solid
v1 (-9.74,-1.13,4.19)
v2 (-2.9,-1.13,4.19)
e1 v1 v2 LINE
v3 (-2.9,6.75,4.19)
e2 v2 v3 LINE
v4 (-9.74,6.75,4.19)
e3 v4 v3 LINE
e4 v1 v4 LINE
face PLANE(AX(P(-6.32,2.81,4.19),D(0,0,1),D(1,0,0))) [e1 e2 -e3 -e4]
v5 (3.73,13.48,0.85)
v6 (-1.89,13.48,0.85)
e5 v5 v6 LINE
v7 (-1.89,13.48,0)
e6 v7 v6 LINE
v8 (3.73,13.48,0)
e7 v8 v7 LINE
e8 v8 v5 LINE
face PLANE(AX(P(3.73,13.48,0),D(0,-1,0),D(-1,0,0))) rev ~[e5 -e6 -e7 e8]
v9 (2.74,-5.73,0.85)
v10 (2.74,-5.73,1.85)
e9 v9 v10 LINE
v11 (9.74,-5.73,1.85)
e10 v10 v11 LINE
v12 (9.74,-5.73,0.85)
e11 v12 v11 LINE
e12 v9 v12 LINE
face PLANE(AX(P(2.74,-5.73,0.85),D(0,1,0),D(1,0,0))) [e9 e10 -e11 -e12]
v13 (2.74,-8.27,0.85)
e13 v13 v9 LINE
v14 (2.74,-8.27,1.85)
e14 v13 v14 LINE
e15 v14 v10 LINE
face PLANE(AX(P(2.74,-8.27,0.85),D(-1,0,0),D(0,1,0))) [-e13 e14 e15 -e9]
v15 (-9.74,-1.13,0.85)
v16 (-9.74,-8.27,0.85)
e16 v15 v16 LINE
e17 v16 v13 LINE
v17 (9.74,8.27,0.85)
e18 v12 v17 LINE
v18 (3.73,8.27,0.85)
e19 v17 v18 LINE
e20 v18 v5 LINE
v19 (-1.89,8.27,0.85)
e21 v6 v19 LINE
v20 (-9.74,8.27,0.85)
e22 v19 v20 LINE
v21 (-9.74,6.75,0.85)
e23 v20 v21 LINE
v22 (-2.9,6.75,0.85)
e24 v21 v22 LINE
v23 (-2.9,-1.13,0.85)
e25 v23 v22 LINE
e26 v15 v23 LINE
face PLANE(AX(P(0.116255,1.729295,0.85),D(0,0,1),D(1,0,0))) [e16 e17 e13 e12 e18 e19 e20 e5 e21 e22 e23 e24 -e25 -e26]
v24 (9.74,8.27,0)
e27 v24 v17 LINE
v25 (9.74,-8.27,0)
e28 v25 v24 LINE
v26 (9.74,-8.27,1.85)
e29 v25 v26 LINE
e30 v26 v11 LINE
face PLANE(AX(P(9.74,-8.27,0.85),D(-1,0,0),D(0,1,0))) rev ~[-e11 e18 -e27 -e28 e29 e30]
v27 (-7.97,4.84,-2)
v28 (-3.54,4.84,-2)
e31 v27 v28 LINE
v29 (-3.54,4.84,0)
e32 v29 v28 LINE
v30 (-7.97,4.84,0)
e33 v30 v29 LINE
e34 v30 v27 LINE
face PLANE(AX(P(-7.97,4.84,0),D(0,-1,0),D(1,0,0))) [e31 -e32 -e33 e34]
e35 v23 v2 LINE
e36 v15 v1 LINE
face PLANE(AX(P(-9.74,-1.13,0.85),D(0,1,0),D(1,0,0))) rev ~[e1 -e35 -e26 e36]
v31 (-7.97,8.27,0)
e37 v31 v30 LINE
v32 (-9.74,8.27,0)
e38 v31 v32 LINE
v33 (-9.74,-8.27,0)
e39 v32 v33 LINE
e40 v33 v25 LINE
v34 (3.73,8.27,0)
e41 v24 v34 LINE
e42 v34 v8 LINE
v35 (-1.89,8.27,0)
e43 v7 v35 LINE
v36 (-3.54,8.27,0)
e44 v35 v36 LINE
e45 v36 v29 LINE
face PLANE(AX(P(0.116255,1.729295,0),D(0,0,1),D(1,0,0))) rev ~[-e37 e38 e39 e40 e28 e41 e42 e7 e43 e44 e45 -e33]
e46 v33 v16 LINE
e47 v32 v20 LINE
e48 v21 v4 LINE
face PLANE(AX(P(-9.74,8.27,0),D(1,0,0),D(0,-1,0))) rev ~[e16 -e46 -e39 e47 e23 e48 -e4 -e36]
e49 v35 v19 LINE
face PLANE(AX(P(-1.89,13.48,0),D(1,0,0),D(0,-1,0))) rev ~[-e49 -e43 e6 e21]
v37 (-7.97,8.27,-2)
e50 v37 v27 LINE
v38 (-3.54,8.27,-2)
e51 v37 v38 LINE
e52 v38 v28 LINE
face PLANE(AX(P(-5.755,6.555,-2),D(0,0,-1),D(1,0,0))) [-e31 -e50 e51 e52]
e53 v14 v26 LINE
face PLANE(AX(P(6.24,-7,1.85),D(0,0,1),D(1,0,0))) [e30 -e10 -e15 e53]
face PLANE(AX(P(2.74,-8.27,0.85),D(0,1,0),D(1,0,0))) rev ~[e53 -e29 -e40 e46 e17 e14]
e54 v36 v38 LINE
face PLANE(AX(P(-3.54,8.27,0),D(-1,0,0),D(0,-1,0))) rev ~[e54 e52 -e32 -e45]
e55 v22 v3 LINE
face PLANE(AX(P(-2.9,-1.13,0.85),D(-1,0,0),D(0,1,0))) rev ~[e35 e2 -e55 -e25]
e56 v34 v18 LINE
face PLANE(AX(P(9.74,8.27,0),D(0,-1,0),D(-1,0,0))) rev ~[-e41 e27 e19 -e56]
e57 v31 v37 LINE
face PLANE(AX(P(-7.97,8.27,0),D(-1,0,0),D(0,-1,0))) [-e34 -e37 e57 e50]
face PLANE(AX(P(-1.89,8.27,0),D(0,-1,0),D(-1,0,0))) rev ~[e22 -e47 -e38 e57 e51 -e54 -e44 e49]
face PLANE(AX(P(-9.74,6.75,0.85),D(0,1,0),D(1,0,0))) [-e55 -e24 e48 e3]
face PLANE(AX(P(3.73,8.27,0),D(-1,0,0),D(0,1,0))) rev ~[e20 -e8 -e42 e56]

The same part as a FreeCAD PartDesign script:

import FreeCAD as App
import Part
import Sketcher


def add_polygon(sketch, points):
    """Adds a closed chain of lines whose ends are joined by coincident constraints."""
    first, n = sketch.GeometryCount, len(points)
    for a, b in zip(points, points[1:] + points[:1]):
        sketch.addGeometry(Part.LineSegment(App.Vector(*a, 0), App.Vector(*b, 0)), False)
    for i in range(n):
        sketch.addConstraint(Sketcher.Constraint("Coincident", first + i, 2, first + (i + 1) % n, 1))

doc = App.newDocument("Part")
body = doc.addObject("PartDesign::Body", "Body")

# Sketch on XY plane
sketch1 = doc.addObject("Sketcher::SketchObject", "Sketch")
body.addObject(sketch1)
sketch1.AttachmentSupport = (doc.XY_Plane, [""])
sketch1.MapMode = "FlatFace"
add_polygon(sketch1, [(-9.74, -8.27), (9.74, -8.27), (9.74, 8.27), (3.73, 8.27), (3.73, 13.48), (-1.89, 13.48), (-1.89, 8.27), (-9.74, 8.27)])  # lines 0-7
sketch1.addConstraint([
    Sketcher.Constraint("Horizontal", 0),
    Sketcher.Constraint("Vertical", 1),
    Sketcher.Constraint("Horizontal", 2),
    Sketcher.Constraint("Vertical", 3),
    Sketcher.Constraint("Horizontal", 4),
    Sketcher.Constraint("Vertical", 5),
    Sketcher.Constraint("Horizontal", 6),
    Sketcher.Constraint("Vertical", 7),
    Sketcher.Constraint("Symmetric", 0, 2, 6, 2, -1, 1),
    Sketcher.Constraint("Horizontal", 2, 2, 5, 2),
    Sketcher.Constraint("DistanceX", 0, 1, 0, 2, 19.48),
    Sketcher.Constraint("DistanceX", 2, 2, 2, 1, 6.01),
    Sketcher.Constraint("DistanceX", 4, 2, 4, 1, 5.62),
    Sketcher.Constraint("DistanceY", 1, 1, 1, 2, 16.54),
    Sketcher.Constraint("DistanceY", 3, 1, 3, 2, 5.21),
])
pad1 = doc.addObject("PartDesign::Pad", "Pad")
body.addObject(pad1)
pad1.Profile = sketch1
pad1.Length = 0.85

# Sketch on XY plane
sketch2 = doc.addObject("Sketcher::SketchObject", "Sketch001")
body.addObject(sketch2)
sketch2.AttachmentSupport = (doc.XY_Plane, [""])
sketch2.MapMode = "FlatFace"
sketch2.AttachmentOffset = App.Placement(App.Vector(0, 0, 0.85), App.Rotation())
add_polygon(sketch2, [(-9.74, 6.75), (-9.74, -1.13), (-2.9, -1.13), (-2.9, 6.75)])  # lines 0-3
sketch2.addConstraint([
    Sketcher.Constraint("Vertical", 0),
    Sketcher.Constraint("Horizontal", 1),
    Sketcher.Constraint("Vertical", 2),
    Sketcher.Constraint("Horizontal", 3),
    Sketcher.Constraint("DistanceX", 1, 1, 1, 2, 6.84),
    Sketcher.Constraint("DistanceY", 0, 2, 0, 1, 7.88),
    Sketcher.Constraint("DistanceX", 1, 2, -1, 1, 2.9),
    Sketcher.Constraint("DistanceY", 0, 2, -1, 1, 1.13),
])
pad2 = doc.addObject("PartDesign::Pad", "Pad001")
body.addObject(pad2)
pad2.Profile = sketch2
pad2.Length = 3.34

# Sketch on XY plane
sketch3 = doc.addObject("Sketcher::SketchObject", "Sketch002")
body.addObject(sketch3)
sketch3.AttachmentSupport = (doc.XY_Plane, [""])
sketch3.MapMode = "FlatFace"
sketch3.AttachmentOffset = App.Placement(App.Vector(0, 0, 0.85), App.Rotation())
add_polygon(sketch3, [(2.74, -5.73), (2.74, -8.27), (9.74, -8.27), (9.74, -5.73)])  # lines 0-3
sketch3.addConstraint([
    Sketcher.Constraint("Vertical", 0),
    Sketcher.Constraint("Horizontal", 1),
    Sketcher.Constraint("Vertical", 2),
    Sketcher.Constraint("Horizontal", 3),
    Sketcher.Constraint("DistanceX", 1, 1, 1, 2, 7.0),
    Sketcher.Constraint("DistanceY", 0, 2, 0, 1, 2.54),
    Sketcher.Constraint("DistanceX", -1, 1, 0, 2, 2.74),
    Sketcher.Constraint("DistanceY", 0, 2, -1, 1, 8.27),
])
pad3 = doc.addObject("PartDesign::Pad", "Pad002")
body.addObject(pad3)
pad3.Profile = sketch3
pad3.Length = 1

# Sketch on XY plane
sketch4 = doc.addObject("Sketcher::SketchObject", "Sketch003")
body.addObject(sketch4)
sketch4.AttachmentSupport = (doc.XY_Plane, [""])
sketch4.MapMode = "FlatFace"
add_polygon(sketch4, [(-7.97, 4.84), (-7.97, 8.27), (-3.54, 8.27), (-3.54, 4.84)])  # lines 0-3
sketch4.addConstraint([
    Sketcher.Constraint("Vertical", 0),
    Sketcher.Constraint("Horizontal", 1),
    Sketcher.Constraint("Vertical", 2),
    Sketcher.Constraint("Horizontal", 3),
    Sketcher.Constraint("DistanceX", 1, 1, 1, 2, 4.43),
    Sketcher.Constraint("DistanceY", 0, 1, 0, 2, 3.43),
    Sketcher.Constraint("DistanceX", 0, 2, -1, 1, 7.97),
    Sketcher.Constraint("DistanceY", -1, 1, 0, 2, 8.27),
])
pad4 = doc.addObject("PartDesign::Pad", "Pad003")
body.addObject(pad4)
pad4.Profile = sketch4
pad4.Length = 2
pad4.Reversed = True

doc.recompute()
